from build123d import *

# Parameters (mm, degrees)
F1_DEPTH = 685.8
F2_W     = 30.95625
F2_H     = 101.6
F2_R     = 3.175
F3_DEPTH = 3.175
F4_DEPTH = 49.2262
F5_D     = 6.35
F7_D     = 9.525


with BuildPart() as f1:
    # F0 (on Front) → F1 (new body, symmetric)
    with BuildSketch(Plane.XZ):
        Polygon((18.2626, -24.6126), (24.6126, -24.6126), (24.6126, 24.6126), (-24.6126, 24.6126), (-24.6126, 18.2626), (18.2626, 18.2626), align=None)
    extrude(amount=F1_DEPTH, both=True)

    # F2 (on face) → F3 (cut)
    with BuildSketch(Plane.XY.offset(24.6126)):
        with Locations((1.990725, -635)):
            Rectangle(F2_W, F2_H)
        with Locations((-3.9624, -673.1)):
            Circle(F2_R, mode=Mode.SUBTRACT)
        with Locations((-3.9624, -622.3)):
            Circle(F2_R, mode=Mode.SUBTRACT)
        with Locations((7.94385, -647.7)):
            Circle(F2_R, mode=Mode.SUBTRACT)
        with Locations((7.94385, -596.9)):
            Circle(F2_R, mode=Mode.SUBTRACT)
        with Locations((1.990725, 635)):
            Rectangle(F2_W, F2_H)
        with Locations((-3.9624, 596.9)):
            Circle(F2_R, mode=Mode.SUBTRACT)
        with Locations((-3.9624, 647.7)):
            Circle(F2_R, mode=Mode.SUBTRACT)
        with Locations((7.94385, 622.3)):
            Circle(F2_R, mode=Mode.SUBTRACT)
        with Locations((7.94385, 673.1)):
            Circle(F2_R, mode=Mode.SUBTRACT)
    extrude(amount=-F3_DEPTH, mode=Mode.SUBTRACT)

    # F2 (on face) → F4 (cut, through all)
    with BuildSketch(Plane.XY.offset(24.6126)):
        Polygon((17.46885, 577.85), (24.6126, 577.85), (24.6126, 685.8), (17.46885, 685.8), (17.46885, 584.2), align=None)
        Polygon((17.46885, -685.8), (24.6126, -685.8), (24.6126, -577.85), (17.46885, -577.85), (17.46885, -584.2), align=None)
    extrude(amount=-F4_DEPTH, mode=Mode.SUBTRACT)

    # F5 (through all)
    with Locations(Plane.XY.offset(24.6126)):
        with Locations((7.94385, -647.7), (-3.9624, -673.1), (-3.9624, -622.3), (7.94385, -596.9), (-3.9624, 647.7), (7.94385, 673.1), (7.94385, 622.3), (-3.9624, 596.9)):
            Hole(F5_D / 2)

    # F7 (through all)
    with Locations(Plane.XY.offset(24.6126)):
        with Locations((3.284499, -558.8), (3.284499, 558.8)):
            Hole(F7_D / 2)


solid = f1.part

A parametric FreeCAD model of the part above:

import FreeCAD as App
import Part
import Sketcher
Q = App.Units.Quantity


def add_polygon(sketch, points):
    """Adds a closed chain of lines whose ends are joined by coincident constraints."""
    first, n = sketch.GeometryCount, len(points)
    for a, b in zip(points, points[1:] + points[:1]):
        sketch.addGeometry(Part.LineSegment(App.Vector(*a, 0), App.Vector(*b, 0)), False)
    for i in range(n):
        sketch.addConstraint(Sketcher.Constraint("Coincident", first + i, 2, first + (i + 1) % n, 1))

doc = App.newDocument("Part")
body = doc.addObject("PartDesign::Body", "Body")

# Sketch on XZ plane
sketch1 = body.newObject("Sketcher::SketchObject", "Sketch")
sketch1.AttachmentSupport = (doc.getObject("XZ_Plane"), [""])
sketch1.MapMode = "FlatFace"
add_polygon(sketch1, [(18, -25), (25, -25), (25, 25), (-25, 25), (-25, 18), (18, 18)])  # lines 0-5
sketch1.addConstraint([
    Sketcher.Constraint("Horizontal", 0),
    Sketcher.Constraint("Vertical", 1),
    Sketcher.Constraint("Horizontal", 2),
    Sketcher.Constraint("Vertical", 3),
    Sketcher.Constraint("Horizontal", 4),
    Sketcher.Constraint("Vertical", 5),
    Sketcher.Constraint("Symmetric", 0, 2, 2, 2, -1, 1),
    Sketcher.Constraint("Equal", 2, 1),
    Sketcher.Constraint("Equal", 0, 3),
    Sketcher.Constraint("DistanceX", 0, 1, 0, 2, Q("0.25 in")),
    Sketcher.Constraint("DistanceX", 2, 2, 2, 1, Q("1.938 in")),
])
pad1 = body.newObject("PartDesign::Pad", "Pad")
pad1.Profile = sketch1
pad1.Length = Q("54 in")
pad1.Midplane = True

# Sketch on XY plane
sketch2 = body.newObject("Sketcher::SketchObject", "Sketch001")
sketch2.AttachmentSupport = (doc.getObject("XY_Plane"), [""])
sketch2.MapMode = "FlatFace"
sketch2.AttachmentOffset = App.Placement(App.Vector(0, 0, 0.969 * 25.4), App.Rotation())
add_polygon(sketch2, [(-13.5, -584.2), (-13.5, -685.8), (17.5, -685.8), (17.5, -584.2)])  # lines 0-3
sketch2.addGeometry(Part.Circle(App.Vector(-4, -673.1, 0), App.Vector(0, 0, 1), 3.2), False)  # 4
sketch2.addGeometry(Part.Circle(App.Vector(7.9, -647.7, 0), App.Vector(0, 0, 1), 3.2), False)  # 5
sketch2.addGeometry(Part.Circle(App.Vector(-4, -622.3, 0), App.Vector(0, 0, 1), 3.2), False)  # 6
sketch2.addGeometry(Part.Circle(App.Vector(7.9, -596.9, 0), App.Vector(0, 0, 1), 3.2), False)  # 7
add_polygon(sketch2, [(-13.5, 685.8), (-13.5, 584.2), (17.5, 584.2), (17.5, 685.8)])  # lines 8-11
sketch2.addGeometry(Part.Circle(App.Vector(-4, 596.9, 0), App.Vector(0, 0, 1), 3.2), False)  # 12
sketch2.addGeometry(Part.Circle(App.Vector(7.9, 622.3, 0), App.Vector(0, 0, 1), 3.2), False)  # 13
sketch2.addGeometry(Part.Circle(App.Vector(-4, 647.7, 0), App.Vector(0, 0, 1), 3.2), False)  # 14
sketch2.addGeometry(Part.Circle(App.Vector(7.9, 673.1, 0), App.Vector(0, 0, 1), 3.2), False)  # 15
sketch2.addConstraint([
    Sketcher.Constraint("Vertical", 0),
    Sketcher.Constraint("Horizontal", 1),
    Sketcher.Constraint("Vertical", 2),
    Sketcher.Constraint("Horizontal", 3),
    Sketcher.Constraint("Vertical", 8),
    Sketcher.Constraint("Horizontal", 9),
    Sketcher.Constraint("Vertical", 10),
    Sketcher.Constraint("Horizontal", 11),
    Sketcher.Constraint("Equal", 4, 5),
    Sketcher.Constraint("Equal", 5, 6),
    Sketcher.Constraint("Equal", 6, 7),
    Sketcher.Constraint("Equal", 7, 12),
    Sketcher.Constraint("Equal", 12, 13),
    Sketcher.Constraint("Equal", 13, 14),
    Sketcher.Constraint("Equal", 14, 15),
    Sketcher.Constraint("Symmetric", 3, 2, 8, 2, -1),
    Sketcher.Constraint("Symmetric", 1, 2, 10, 2, -1),
    Sketcher.Constraint("Vertical", 4, 3, 6, 3),
    Sketcher.Constraint("Vertical", 5, 3, 7, 3),
    Sketcher.Constraint("Vertical", 6, 3, 12, 3),
    Sketcher.Constraint("Vertical", 7, 3, 13, 3),
    Sketcher.Constraint("Vertical", 12, 3, 14, 3),
    Sketcher.Constraint("Vertical", 13, 3, 15, 3),
    Sketcher.Constraint("Diameter", 4, Q("0.25 in")),
    Sketcher.Constraint("DistanceY", 0, 2, 0, 1, Q("4 in")),
    Sketcher.Constraint("DistanceY", 0, 2, -1, 1, Q("27 in")),
    Sketcher.Constraint("DistanceY", 4, 3, 5, 3, Q("1 in")),
    Sketcher.Constraint("DistanceY", 5, 3, 6, 3, Q("1 in")),
    Sketcher.Constraint("DistanceY", 6, 3, 7, 3, Q("1 in")),
    Sketcher.Constraint("DistanceY", 7, 3, 12, 3, Q("47 in")),
    Sketcher.Constraint("DistanceY", 12, 3, 13, 3, Q("1 in")),
    Sketcher.Constraint("DistanceY", 13, 3, 14, 3, Q("1 in")),
    Sketcher.Constraint("DistanceY", 14, 3, 15, 3, Q("1 in")),
    Sketcher.Constraint("DistanceY", 4, 3, -1, 1, Q("26.5 in")),
    Sketcher.Constraint("DistanceX", 1, 1, 1, 2, Q("1.21875 in")),
    Sketcher.Constraint("DistanceX", 4, 3, -1, 1, Q("0.156 in")),
    Sketcher.Constraint("DistanceX", 0, 2, -1, 1, Q("0.531 in")),
    Sketcher.Constraint("DistanceX", 4, 3, 5, 3, Q("0.46875 in")),
])
pocket1 = body.newObject("PartDesign::Pocket", "Pocket")
pocket1.Profile = sketch2
pocket1.Length = Q("0.125 in")

# Sketch on XY plane
sketch3 = body.newObject("Sketcher::SketchObject", "Sketch002")
sketch3.AttachmentSupport = (doc.getObject("XY_Plane"), [""])
sketch3.MapMode = "FlatFace"
sketch3.AttachmentOffset = App.Placement(App.Vector(0, 0, 0.969 * 25.4), App.Rotation())
add_polygon(sketch3, [(17, 578), (25, 578), (25, 686), (17, 686)])  # lines 0-3
add_polygon(sketch3, [(17, -686), (25, -686), (25, -578), (17, -578)])  # lines 4-7
sketch3.addConstraint([
    Sketcher.Constraint("Horizontal", 0),
    Sketcher.Constraint("Vertical", 1),
    Sketcher.Constraint("Horizontal", 2),
    Sketcher.Constraint("Vertical", 3),
    Sketcher.Constraint("Horizontal", 4),
    Sketcher.Constraint("Vertical", 5),
    Sketcher.Constraint("Horizontal", 6),
    Sketcher.Constraint("Vertical", 7),
    Sketcher.Constraint("Symmetric", 1, 2, 4, 2, -1),
    Sketcher.Constraint("Symmetric", 3, 2, 6, 2, -1),
    Sketcher.Constraint("DistanceY", -1, 1, 1, 2, Q("27 in")),
    Sketcher.Constraint("DistanceY", 1, 1, 1, 2, Q("4.25 in")),
    Sketcher.Constraint("DistanceX", 0, 1, 0, 2, Q("0.28125 in")),
    Sketcher.Constraint("DistanceX", -1, 1, 0, 2, Q("0.969 in")),
])
pocket2 = body.newObject("PartDesign::Pocket", "Pocket001")
pocket2.Profile = sketch3
pocket2.Type = "ThroughAll"

# Sketch on XY plane
sketch4 = body.newObject("Sketcher::SketchObject", "Sketch003")
sketch4.AttachmentSupport = (doc.getObject("XY_Plane"), [""])
sketch4.MapMode = "FlatFace"
sketch4.AttachmentOffset = App.Placement(App.Vector(0, 0, 0.969 * 25.4), App.Rotation())
sketch4.addGeometry([
    Part.Circle(App.Vector(7.9, -647.7, 0), App.Vector(0, 0, 1), 3.2),  # 0
    Part.Circle(App.Vector(-4, -673.1, 0), App.Vector(0, 0, 1), 3.2),  # 1
    Part.Circle(App.Vector(-4, -622.3, 0), App.Vector(0, 0, 1), 3.2),  # 2
    Part.Circle(App.Vector(7.9, -596.9, 0), App.Vector(0, 0, 1), 3.2),  # 3
    Part.Circle(App.Vector(-4, 647.7, 0), App.Vector(0, 0, 1), 3.2),  # 4
    Part.Circle(App.Vector(7.9, 673.1, 0), App.Vector(0, 0, 1), 3.2),  # 5
    Part.Circle(App.Vector(7.9, 622.3, 0), App.Vector(0, 0, 1), 3.2),  # 6
    Part.Circle(App.Vector(-4, 596.9, 0), App.Vector(0, 0, 1), 3.2),  # 7
], False)
sketch4.addConstraint([
    Sketcher.Constraint("Equal", 0, 1),
    Sketcher.Constraint("Equal", 1, 2),
    Sketcher.Constraint("Equal", 2, 3),
    Sketcher.Constraint("Equal", 3, 4),
    Sketcher.Constraint("Equal", 4, 5),
    Sketcher.Constraint("Equal", 5, 6),
    Sketcher.Constraint("Equal", 6, 7),
    Sketcher.Constraint("Vertical", 1, 3, 2, 3),
    Sketcher.Constraint("Vertical", 0, 3, 3, 3),
    Sketcher.Constraint("Vertical", 2, 3, 4, 3),
    Sketcher.Constraint("Vertical", 3, 3, 5, 3),
    Sketcher.Constraint("Vertical", 5, 3, 6, 3),
    Sketcher.Constraint("Vertical", 4, 3, 7, 3),
    Sketcher.Constraint("Diameter", 0, Q("0.25 in")),
    Sketcher.Constraint("DistanceY", 1, 3, 0, 3, Q("1 in")),
    Sketcher.Constraint("DistanceY", 0, 3, 2, 3, Q("1 in")),
    Sketcher.Constraint("DistanceY", 2, 3, 3, 3, Q("1 in")),
    Sketcher.Constraint("DistanceY", 3, 3, 4, 3, Q("49 in")),
    Sketcher.Constraint("DistanceY", 4, 3, 5, 3, Q("1 in")),
    Sketcher.Constraint("DistanceY", 6, 3, 4, 3, Q("1 in")),
    Sketcher.Constraint("DistanceY", 7, 3, 6, 3, Q("1 in")),
    Sketcher.Constraint("DistanceY", 0, 3, -1, 1, Q("25.5 in")),
    Sketcher.Constraint("DistanceX", 1, 3, -1, 1, Q("0.156 in")),
    Sketcher.Constraint("DistanceX", 1, 3, 0, 3, Q("0.46875 in")),
])
doc.recompute()
hole = body.newObject("PartDesign::Hole", "Hole")
hole.Profile = sketch4
hole.ThreadType = "None"
hole.Diameter = Q("0.25 in")
hole.DepthType = "ThroughAll"

# Sketch on XY plane
sketch5 = body.newObject("Sketcher::SketchObject", "Sketch004")
sketch5.AttachmentSupport = (doc.getObject("XY_Plane"), [""])
sketch5.MapMode = "FlatFace"
sketch5.AttachmentOffset = App.Placement(App.Vector(0, 0, 0.969 * 25.4), App.Rotation())
sketch5.addGeometry([
    Part.Circle(App.Vector(3.3, -558.8, 0), App.Vector(0, 0, 1), 4.8),
    Part.Circle(App.Vector(3.3, 558.8, 0), App.Vector(0, 0, 1), 4.8),
], False)
sketch5.addConstraint([
    Sketcher.Constraint("Equal", 0, 1),
    Sketcher.Constraint("Symmetric", 0, 3, 1, 3, -1),
    Sketcher.Constraint("Diameter", 0, Q("0.375 in")),
    Sketcher.Constraint("DistanceY", 0, 3, -1, 1, Q("22 in")),
    Sketcher.Constraint("DistanceX", -1, 1, 0, 3, Q("3.284499 mm")),
])
doc.recompute()
hole2 = body.newObject("PartDesign::Hole", "Hole001")
hole2.Profile = sketch5
hole2.ThreadType = "None"
hole2.Diameter = Q("0.375 in")
hole2.DepthType = "ThroughAll"

doc.recompute()
